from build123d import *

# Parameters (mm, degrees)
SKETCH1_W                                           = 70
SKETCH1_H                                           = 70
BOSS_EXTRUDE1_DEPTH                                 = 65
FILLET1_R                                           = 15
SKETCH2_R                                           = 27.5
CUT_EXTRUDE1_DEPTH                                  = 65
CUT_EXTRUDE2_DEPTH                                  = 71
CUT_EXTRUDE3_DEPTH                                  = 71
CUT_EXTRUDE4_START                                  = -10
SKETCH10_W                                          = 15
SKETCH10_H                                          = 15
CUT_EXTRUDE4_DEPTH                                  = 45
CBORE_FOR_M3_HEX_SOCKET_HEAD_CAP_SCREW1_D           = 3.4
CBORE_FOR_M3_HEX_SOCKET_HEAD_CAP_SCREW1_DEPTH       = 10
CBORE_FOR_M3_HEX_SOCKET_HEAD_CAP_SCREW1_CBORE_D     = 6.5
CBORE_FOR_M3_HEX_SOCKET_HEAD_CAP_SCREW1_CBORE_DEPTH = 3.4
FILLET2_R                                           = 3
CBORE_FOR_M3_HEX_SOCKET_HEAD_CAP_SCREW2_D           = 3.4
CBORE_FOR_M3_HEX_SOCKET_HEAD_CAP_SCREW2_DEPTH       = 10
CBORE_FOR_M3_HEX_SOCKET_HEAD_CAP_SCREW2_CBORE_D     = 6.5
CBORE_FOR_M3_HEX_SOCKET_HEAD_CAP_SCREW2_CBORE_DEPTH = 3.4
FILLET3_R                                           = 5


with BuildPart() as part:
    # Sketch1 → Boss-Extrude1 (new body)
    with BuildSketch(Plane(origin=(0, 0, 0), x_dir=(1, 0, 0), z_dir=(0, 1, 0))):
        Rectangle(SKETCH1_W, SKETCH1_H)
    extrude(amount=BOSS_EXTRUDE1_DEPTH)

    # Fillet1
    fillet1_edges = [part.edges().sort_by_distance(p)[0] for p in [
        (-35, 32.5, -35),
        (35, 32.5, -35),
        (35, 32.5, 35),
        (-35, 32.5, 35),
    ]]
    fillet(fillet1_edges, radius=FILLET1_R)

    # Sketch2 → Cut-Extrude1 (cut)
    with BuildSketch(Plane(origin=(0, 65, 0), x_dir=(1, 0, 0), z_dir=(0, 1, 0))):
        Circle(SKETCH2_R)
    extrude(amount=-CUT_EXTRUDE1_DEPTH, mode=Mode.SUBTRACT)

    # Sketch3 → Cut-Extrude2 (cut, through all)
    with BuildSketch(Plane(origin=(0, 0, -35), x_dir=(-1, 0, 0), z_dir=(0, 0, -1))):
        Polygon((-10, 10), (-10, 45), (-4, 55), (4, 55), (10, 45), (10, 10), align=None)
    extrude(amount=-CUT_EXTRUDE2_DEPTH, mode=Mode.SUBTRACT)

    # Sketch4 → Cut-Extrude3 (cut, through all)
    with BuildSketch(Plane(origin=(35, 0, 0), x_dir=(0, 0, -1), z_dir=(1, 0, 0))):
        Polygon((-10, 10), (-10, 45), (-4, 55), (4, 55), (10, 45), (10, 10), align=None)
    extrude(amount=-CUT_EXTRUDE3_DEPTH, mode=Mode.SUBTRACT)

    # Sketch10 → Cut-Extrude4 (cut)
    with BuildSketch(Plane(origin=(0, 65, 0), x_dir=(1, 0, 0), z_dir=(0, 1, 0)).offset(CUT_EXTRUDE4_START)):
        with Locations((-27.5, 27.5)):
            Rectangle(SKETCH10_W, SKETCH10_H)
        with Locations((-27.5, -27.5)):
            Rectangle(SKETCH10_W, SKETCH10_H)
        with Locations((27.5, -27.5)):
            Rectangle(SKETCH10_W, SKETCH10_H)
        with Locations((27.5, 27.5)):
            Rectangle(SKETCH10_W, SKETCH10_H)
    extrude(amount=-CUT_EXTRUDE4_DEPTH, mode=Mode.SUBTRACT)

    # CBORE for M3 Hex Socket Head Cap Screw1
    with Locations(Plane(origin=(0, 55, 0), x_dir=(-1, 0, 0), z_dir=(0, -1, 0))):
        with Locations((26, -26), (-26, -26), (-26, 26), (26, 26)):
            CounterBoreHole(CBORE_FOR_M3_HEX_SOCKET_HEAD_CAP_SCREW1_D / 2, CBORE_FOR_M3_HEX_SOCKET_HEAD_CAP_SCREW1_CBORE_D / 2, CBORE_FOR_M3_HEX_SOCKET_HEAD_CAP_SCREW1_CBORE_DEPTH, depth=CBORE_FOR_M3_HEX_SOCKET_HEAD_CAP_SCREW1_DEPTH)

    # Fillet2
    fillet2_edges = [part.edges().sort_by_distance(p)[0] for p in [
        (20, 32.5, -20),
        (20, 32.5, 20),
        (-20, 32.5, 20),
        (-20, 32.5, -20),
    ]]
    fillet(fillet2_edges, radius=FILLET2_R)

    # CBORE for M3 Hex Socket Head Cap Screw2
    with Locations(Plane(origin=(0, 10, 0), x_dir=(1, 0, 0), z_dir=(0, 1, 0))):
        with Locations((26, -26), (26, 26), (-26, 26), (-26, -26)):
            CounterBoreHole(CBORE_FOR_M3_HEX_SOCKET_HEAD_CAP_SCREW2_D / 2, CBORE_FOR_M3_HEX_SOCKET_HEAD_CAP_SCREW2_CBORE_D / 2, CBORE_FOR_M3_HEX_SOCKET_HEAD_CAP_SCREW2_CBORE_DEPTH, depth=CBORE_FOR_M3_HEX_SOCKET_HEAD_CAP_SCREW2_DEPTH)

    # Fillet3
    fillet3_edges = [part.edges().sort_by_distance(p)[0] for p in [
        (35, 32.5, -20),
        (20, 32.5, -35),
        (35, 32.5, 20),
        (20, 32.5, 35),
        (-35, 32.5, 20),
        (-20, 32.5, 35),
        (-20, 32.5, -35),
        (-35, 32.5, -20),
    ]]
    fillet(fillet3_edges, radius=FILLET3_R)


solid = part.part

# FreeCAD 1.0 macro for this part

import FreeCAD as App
import Part
import Sketcher
from FreeCAD import Vector


def edges_at(feature, points):
    """Names of the edges that pass closest to the given points."""
    edges = feature.Shape.Edges
    near = lambda p: min(range(len(edges)), key=lambda i: edges[i].distToShape(Part.Vertex(*p))[0])
    return sorted({f"Edge{near(p) + 1}" for p in points})


def add_polygon(sketch, points):
    """Adds a closed chain of lines whose ends are joined by coincident constraints."""
    first, n = sketch.GeometryCount, len(points)
    for a, b in zip(points, points[1:] + points[:1]):
        sketch.addGeometry(Part.LineSegment(App.Vector(*a, 0), App.Vector(*b, 0)), False)
    for i in range(n):
        sketch.addConstraint(Sketcher.Constraint("Coincident", first + i, 2, first + (i + 1) % n, 1))

doc = App.newDocument("Part")
body = doc.addObject("PartDesign::Body", "Body")

# Sketch on XZ plane
sketch1 = doc.addObject("Sketcher::SketchObject", "Sketch")
body.addObject(sketch1)
sketch1.AttachmentSupport = (doc.XZ_Plane, [""])
sketch1.MapMode = "FlatFace"
add_polygon(sketch1, [(-35, -35), (-35, 35), (35, 35), (35, -35)])  # lines 0-3
sketch1.addConstraint([
    Sketcher.Constraint("Vertical", 0),
    Sketcher.Constraint("Horizontal", 1),
    Sketcher.Constraint("Vertical", 2),
    Sketcher.Constraint("Horizontal", 3),
    Sketcher.Constraint("Symmetric", 0, 2, 2, 2, -1, 1),
    Sketcher.Constraint("Equal", 3, 0),
    Sketcher.Constraint("DistanceX", 1, 1, 1, 2, 70.0),
])
pad1 = doc.addObject("PartDesign::Pad", "Pad")
body.addObject(pad1)
pad1.Profile = sketch1
pad1.Length = 65
pad1.Reversed = True
doc.recompute()

fillet = doc.addObject("PartDesign::Fillet", "Fillet")
body.addObject(fillet)
fillet.Base = (pad1, edges_at(pad1, [
    (-35, 32.5, -35),
    (35, 32.5, -35),
    (35, 32.5, 35),
    (-35, 32.5, 35),
]))
fillet.Radius = 15

# Sketch on XZ plane
sketch2 = doc.addObject("Sketcher::SketchObject", "Sketch001")
body.addObject(sketch2)
sketch2.AttachmentSupport = (doc.XZ_Plane, [""])
sketch2.MapMode = "FlatFace"
sketch2.AttachmentOffset = App.Placement(Vector(0, 0, -65), App.Rotation())
sketch2.addGeometry(Part.Circle(Vector(0, 0, 0), Vector(0, 0, 1), 28), False)
sketch2.addConstraint([
    Sketcher.Constraint("Coincident", 0, 3, -1, 1),
    Sketcher.Constraint("Diameter", 0, 55.0),
])
pocket1 = doc.addObject("PartDesign::Pocket", "Pocket")
body.addObject(pocket1)
pocket1.Profile = sketch2
pocket1.Length = 65
pocket1.Reversed = True

# Sketch on XY plane
sketch3 = doc.addObject("Sketcher::SketchObject", "Sketch002")
body.addObject(sketch3)
sketch3.AttachmentSupport = (doc.XY_Plane, [""])
sketch3.MapMode = "FlatFace"
sketch3.AttachmentOffset = App.Placement(Vector(0, 0, -35), App.Rotation())
add_polygon(sketch3, [(10, 45), (10, 10), (-10, 10), (-10, 45), (-4, 55), (4, 55)])  # lines 0-5
sketch3.addConstraint([
    Sketcher.Constraint("Vertical", 0),
    Sketcher.Constraint("Horizontal", 1),
    Sketcher.Constraint("Vertical", 2),
    Sketcher.Constraint("Horizontal", 4),
    Sketcher.Constraint("Symmetric", 2, 2, 5, 2, -2),
    Sketcher.Constraint("Equal", 3, 5),
    Sketcher.Constraint("DistanceX", 1, 2, 1, 1, 20.0),
    Sketcher.Constraint("DistanceX", 4, 1, 4, 2, 8.0),
    Sketcher.Constraint("DistanceY", 0, 2, 0, 1, 35.0),
    Sketcher.Constraint("DistanceY", -1, 1, 0, 2, 10.0),
    Sketcher.Constraint("DistanceY", -1, 1, 3, 2, 55.0),
])
pocket2 = doc.addObject("PartDesign::Pocket", "Pocket001")
body.addObject(pocket2)
pocket2.Profile = sketch3
pocket2.Type = "ThroughAll"
pocket2.Reversed = True

# Sketch on YZ plane
sketch4 = doc.addObject("Sketcher::SketchObject", "Sketch003")
body.addObject(sketch4)
sketch4.AttachmentSupport = (doc.YZ_Plane, [""])
sketch4.MapMode = "FlatFace"
sketch4.AttachmentOffset = App.Placement(Vector(0, 0, 35), App.Rotation())
add_polygon(sketch4, [(45, 10), (10, 10), (10, -10), (45, -10), (55, -4), (55, 4)])  # lines 0-5
sketch4.addConstraint([
    Sketcher.Constraint("Horizontal", 0),
    Sketcher.Constraint("Vertical", 1),
    Sketcher.Constraint("Horizontal", 2),
    Sketcher.Constraint("Vertical", 4),
    Sketcher.Constraint("Symmetric", 2, 2, 5, 2, -1),
    Sketcher.Constraint("Equal", 3, 5),
    Sketcher.Constraint("DistanceX", 0, 2, 0, 1, 35.0),
    Sketcher.Constraint("DistanceY", 1, 2, 1, 1, 20.0),
    Sketcher.Constraint("DistanceY", 4, 1, 4, 2, 8.0),
    Sketcher.Constraint("DistanceX", -1, 1, 0, 2, 10.0),
    Sketcher.Constraint("DistanceX", -1, 1, 3, 2, 55.0),
])
pocket3 = doc.addObject("PartDesign::Pocket", "Pocket002")
body.addObject(pocket3)
pocket3.Profile = sketch4
pocket3.Type = "ThroughAll"

# Sketch on XZ plane
sketch5 = doc.addObject("Sketcher::SketchObject", "Sketch004")
body.addObject(sketch5)
sketch5.AttachmentSupport = (doc.XZ_Plane, [""])
sketch5.MapMode = "FlatFace"
sketch5.AttachmentOffset = App.Placement(Vector(0, 0, -55), App.Rotation())
add_polygon(sketch5, [(-35, -35), (-35, -20), (-20, -20), (-20, -35)])  # lines 0-3
add_polygon(sketch5, [(-35, 20), (-35, 35), (-20, 35), (-20, 20)])  # lines 4-7
add_polygon(sketch5, [(20, 20), (20, 35), (35, 35), (35, 20)])  # lines 8-11
add_polygon(sketch5, [(20, -35), (20, -20), (35, -20), (35, -35)])  # lines 12-15
sketch5.addConstraint([
    Sketcher.Constraint("Vertical", 0),
    Sketcher.Constraint("Horizontal", 1),
    Sketcher.Constraint("Vertical", 2),
    Sketcher.Constraint("Horizontal", 3),
    Sketcher.Constraint("Vertical", 4),
    Sketcher.Constraint("Horizontal", 5),
    Sketcher.Constraint("Vertical", 6),
    Sketcher.Constraint("Horizontal", 7),
    Sketcher.Constraint("Vertical", 8),
    Sketcher.Constraint("Horizontal", 9),
    Sketcher.Constraint("Vertical", 10),
    Sketcher.Constraint("Horizontal", 11),
    Sketcher.Constraint("Vertical", 12),
    Sketcher.Constraint("Horizontal", 13),
    Sketcher.Constraint("Vertical", 14),
    Sketcher.Constraint("Horizontal", 15),
    Sketcher.Constraint("Symmetric", 2, 2, 8, 2, -1, 1),
    Sketcher.Constraint("Symmetric", 0, 2, 10, 2, -1, 1),
    Sketcher.Constraint("Symmetric", 6, 2, 12, 2, -1, 1),
    Sketcher.Constraint("Symmetric", 4, 2, 14, 2, -1, 1),
    Sketcher.Constraint("Symmetric", 5, 2, 8, 2, -2),
    Sketcher.Constraint("Symmetric", 7, 2, 10, 2, -2),
    Sketcher.Constraint("Equal", 15, 0),
    Sketcher.Constraint("DistanceX", 1, 1, 1, 2, 15.0),
    Sketcher.Constraint("DistanceX", 0, 2, -1, 1, 35.0),
    Sketcher.Constraint("DistanceY", 0, 2, -1, 1, 20.0),
])
pocket4 = doc.addObject("PartDesign::Pocket", "Pocket003")
body.addObject(pocket4)
pocket4.Profile = sketch5
pocket4.Length = 45
pocket4.Reversed = True

# Sketch on XZ plane
sketch6 = doc.addObject("Sketcher::SketchObject", "Sketch005")
body.addObject(sketch6)
sketch6.AttachmentSupport = (doc.XZ_Plane, [""])
sketch6.MapMode = "FlatFace"
sketch6.AttachmentOffset = App.Placement(Vector(0, 0, -55), App.Rotation())
sketch6.addGeometry([
    Part.Circle(Vector(-26, 26, 0), Vector(0, 0, 1), 1.7),
    Part.Circle(Vector(26, 26, 0), Vector(0, 0, 1), 1.7),
    Part.Circle(Vector(26, -26, 0), Vector(0, 0, 1), 1.7),
    Part.Circle(Vector(-26, -26, 0), Vector(0, 0, 1), 1.7),
], False)
sketch6.addConstraint([
    Sketcher.Constraint("Equal", 0, 1),
    Sketcher.Constraint("Equal", 1, 2),
    Sketcher.Constraint("Equal", 2, 3),
    Sketcher.Constraint("Symmetric", 0, 3, 2, 3, -1, 1),
    Sketcher.Constraint("Symmetric", 1, 3, 3, 3, -1, 1),
    Sketcher.Constraint("Symmetric", 0, 3, 1, 3, -2),
    Sketcher.Constraint("Diameter", 0, 3.4),
    Sketcher.Constraint("DistanceX", 0, 3, -1, 1, 26.0),
    Sketcher.Constraint("DistanceY", -1, 1, 0, 3, 26.0),
])
doc.recompute()
hole = doc.addObject("PartDesign::Hole", "Hole")
body.addObject(hole)
hole.Profile = sketch6
hole.ThreadType = "None"
hole.Diameter = 3.4
hole.DepthType = "Dimension"
hole.Depth = 10
hole.DrillPoint = "Flat"
hole.HoleCutType = "Counterbore"
hole.HoleCutDiameter = 6.5
hole.HoleCutDepth = 3.4
doc.recompute()

fillet2 = doc.addObject("PartDesign::Fillet", "Fillet001")
body.addObject(fillet2)
fillet2.Base = (hole, edges_at(hole, [
    (20, 32.5, -20),
    (20, 32.5, 20),
    (-20, 32.5, 20),
    (-20, 32.5, -20),
]))
fillet2.Radius = 3

# Sketch on XZ plane
sketch7 = doc.addObject("Sketcher::SketchObject", "Sketch006")
body.addObject(sketch7)
sketch7.AttachmentSupport = (doc.XZ_Plane, [""])
sketch7.MapMode = "FlatFace"
sketch7.AttachmentOffset = App.Placement(Vector(0, 0, -10), App.Rotation())
sketch7.addGeometry([
    Part.Circle(Vector(26, 26, 0), Vector(0, 0, 1), 1.7),
    Part.Circle(Vector(26, -26, 0), Vector(0, 0, 1), 1.7),
    Part.Circle(Vector(-26, -26, 0), Vector(0, 0, 1), 1.7),
    Part.Circle(Vector(-26, 26, 0), Vector(0, 0, 1), 1.7),
], False)
sketch7.addConstraint([
    Sketcher.Constraint("Equal", 0, 1),
    Sketcher.Constraint("Equal", 1, 2),
    Sketcher.Constraint("Equal", 2, 3),
    Sketcher.Constraint("Symmetric", 0, 3, 2, 3, -1, 1),
    Sketcher.Constraint("Symmetric", 1, 3, 3, 3, -1, 1),
    Sketcher.Constraint("Symmetric", 1, 3, 2, 3, -2),
    Sketcher.Constraint("Diameter", 0, 3.4),
    Sketcher.Constraint("DistanceX", -1, 1, 0, 3, 26.0),
    Sketcher.Constraint("DistanceY", -1, 1, 0, 3, 26.0),
])
doc.recompute()
hole2 = doc.addObject("PartDesign::Hole", "Hole001")
body.addObject(hole2)
hole2.Profile = sketch7
hole2.ThreadType = "None"
hole2.Diameter = 3.4
hole2.DepthType = "Dimension"
hole2.Depth = 10
hole2.DrillPoint = "Flat"
hole2.HoleCutType = "Counterbore"
hole2.HoleCutDiameter = 6.5
hole2.HoleCutDepth = 3.4
hole2.Reversed = True
doc.recompute()

fillet3 = doc.addObject("PartDesign::Fillet", "Fillet002")
body.addObject(fillet3)
fillet3.Base = (hole2, edges_at(hole2, [
    (35, 32.5, -20),
    (20, 32.5, -35),
    (35, 32.5, 20),
    (20, 32.5, 35),
    (-35, 32.5, 20),
    (-20, 32.5, 35),
    (-20, 32.5, -35),
    (-35, 32.5, -20),
]))
fillet3.Radius = 5

doc.recompute()
